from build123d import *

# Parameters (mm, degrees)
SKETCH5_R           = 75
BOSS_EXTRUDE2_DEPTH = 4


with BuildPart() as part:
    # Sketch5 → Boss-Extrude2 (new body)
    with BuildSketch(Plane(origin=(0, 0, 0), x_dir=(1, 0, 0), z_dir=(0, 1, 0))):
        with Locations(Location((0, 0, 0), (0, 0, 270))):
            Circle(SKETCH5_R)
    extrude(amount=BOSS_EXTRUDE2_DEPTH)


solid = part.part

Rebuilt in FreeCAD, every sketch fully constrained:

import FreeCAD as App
import Part
import Sketcher

V = App.Vector
Q = App.Units.Quantity

doc = App.newDocument("Part")
body = doc.addObject("PartDesign::Body", "Body")

# Sketch on XZ plane
sketch1 = body.newObject("Sketcher::SketchObject", "Sketch")
sketch1.AttachmentSupport = (doc.getObject("XZ_Plane"), [""])
sketch1.MapMode = "FlatFace"
sketch1.addGeometry(Part.Circle(V(0, 0, 0), V(0, 0, 1), 75), False)
sketch1.addConstraint(Sketcher.Constraint("Coincident", 0, 3, -1, 1))
sketch1.addConstraint(Sketcher.Constraint("Diameter", 0, Q("150 mm")))
pad1 = body.newObject("PartDesign::Pad", "Pad")
pad1.Profile = sketch1
pad1.Length = 4
pad1.Reversed = True

doc.recompute()
